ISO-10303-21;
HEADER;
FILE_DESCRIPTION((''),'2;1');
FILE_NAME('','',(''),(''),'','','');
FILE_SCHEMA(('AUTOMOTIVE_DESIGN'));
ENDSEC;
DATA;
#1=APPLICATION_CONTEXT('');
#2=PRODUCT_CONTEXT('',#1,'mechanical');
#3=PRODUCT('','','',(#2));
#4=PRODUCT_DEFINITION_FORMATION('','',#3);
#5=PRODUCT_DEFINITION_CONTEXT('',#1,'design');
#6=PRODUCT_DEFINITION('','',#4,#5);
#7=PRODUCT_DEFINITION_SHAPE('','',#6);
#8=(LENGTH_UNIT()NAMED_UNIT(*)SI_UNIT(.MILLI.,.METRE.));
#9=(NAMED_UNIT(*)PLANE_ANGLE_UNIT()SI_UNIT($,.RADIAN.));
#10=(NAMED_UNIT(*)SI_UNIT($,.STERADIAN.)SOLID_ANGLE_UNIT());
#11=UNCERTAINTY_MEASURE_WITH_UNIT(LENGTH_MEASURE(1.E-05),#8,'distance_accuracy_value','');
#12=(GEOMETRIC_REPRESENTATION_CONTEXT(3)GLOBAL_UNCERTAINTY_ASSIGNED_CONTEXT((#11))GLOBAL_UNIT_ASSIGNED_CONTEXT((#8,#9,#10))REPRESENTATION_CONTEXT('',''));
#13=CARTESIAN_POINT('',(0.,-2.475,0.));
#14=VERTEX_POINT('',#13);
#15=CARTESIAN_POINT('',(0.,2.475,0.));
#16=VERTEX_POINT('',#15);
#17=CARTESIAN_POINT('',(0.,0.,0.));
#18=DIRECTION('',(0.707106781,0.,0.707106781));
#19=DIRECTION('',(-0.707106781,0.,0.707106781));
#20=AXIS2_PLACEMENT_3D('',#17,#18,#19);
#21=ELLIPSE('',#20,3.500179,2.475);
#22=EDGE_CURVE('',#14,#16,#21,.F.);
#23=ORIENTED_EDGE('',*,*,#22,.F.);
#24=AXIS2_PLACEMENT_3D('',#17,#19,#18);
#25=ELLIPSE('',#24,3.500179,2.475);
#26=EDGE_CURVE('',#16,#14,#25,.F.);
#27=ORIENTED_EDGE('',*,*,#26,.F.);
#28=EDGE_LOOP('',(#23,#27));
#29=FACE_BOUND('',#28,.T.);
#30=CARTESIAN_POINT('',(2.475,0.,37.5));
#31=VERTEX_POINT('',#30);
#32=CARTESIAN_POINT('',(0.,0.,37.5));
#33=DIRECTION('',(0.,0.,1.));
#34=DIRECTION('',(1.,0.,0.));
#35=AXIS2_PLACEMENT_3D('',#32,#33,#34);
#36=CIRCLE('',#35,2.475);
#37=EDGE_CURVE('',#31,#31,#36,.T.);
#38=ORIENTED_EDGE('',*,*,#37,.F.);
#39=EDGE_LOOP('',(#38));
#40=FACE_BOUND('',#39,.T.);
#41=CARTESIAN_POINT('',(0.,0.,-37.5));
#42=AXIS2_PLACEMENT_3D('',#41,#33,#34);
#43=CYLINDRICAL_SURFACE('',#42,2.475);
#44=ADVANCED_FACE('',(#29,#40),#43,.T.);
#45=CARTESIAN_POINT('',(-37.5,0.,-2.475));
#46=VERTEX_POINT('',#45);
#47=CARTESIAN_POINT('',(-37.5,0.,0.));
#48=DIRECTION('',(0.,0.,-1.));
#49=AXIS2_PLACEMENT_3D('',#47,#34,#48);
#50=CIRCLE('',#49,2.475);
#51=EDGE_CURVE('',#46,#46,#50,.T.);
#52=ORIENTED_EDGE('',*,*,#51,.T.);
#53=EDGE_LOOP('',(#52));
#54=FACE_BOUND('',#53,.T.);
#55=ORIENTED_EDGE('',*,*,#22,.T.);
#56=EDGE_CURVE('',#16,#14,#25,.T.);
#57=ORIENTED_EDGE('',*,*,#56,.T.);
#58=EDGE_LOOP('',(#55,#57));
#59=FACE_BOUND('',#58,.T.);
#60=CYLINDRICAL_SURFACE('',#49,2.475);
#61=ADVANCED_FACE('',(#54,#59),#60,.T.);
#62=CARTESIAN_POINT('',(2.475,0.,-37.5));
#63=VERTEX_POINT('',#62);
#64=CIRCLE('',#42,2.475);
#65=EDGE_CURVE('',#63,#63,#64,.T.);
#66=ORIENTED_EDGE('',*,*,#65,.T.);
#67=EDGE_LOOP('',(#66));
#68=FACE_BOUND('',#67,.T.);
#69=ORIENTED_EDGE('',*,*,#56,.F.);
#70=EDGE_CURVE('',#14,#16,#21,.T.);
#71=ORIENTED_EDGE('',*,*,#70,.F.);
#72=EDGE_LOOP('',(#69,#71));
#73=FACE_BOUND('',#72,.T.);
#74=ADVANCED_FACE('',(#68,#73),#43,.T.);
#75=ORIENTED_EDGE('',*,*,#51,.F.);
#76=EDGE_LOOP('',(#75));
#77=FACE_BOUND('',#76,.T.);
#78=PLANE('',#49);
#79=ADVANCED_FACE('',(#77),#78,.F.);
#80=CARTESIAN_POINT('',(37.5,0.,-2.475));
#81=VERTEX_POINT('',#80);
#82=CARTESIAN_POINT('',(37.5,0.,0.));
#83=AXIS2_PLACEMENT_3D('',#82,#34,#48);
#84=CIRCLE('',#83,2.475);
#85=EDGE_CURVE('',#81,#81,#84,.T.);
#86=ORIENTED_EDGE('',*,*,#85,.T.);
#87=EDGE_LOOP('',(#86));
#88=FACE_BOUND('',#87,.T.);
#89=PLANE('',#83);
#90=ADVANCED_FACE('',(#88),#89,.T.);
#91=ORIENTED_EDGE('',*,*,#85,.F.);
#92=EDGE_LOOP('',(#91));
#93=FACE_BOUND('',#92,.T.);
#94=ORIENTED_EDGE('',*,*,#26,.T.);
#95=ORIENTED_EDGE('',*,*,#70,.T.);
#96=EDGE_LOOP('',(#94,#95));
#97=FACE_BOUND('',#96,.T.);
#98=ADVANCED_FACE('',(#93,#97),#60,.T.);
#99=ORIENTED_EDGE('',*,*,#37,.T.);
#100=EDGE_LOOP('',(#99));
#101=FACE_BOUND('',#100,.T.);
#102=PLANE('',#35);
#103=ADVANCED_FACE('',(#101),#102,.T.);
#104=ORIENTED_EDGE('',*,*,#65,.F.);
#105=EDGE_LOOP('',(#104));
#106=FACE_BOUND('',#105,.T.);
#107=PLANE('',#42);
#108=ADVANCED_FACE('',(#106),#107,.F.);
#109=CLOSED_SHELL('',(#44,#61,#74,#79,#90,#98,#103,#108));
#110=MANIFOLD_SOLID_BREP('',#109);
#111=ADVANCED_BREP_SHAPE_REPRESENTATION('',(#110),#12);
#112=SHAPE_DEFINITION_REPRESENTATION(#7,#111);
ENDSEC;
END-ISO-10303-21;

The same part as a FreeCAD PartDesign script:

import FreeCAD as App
import Part
import Sketcher
from FreeCAD import Vector
Q = App.Units.Quantity

doc = App.newDocument("Part")
params = doc.addObject("Spreadsheet::Sheet", "Params")
for row, (alias, value) in enumerate([
    ("sketch1_diameter", "4.95 mm"),
    ("pad1_length", "75 mm"),
], start=1):
    params.set(f"A{row}", alias)
    params.set(f"B{row}", "=" + value)
    params.setAlias(f"B{row}", alias)

body = doc.addObject("PartDesign::Body", "Body")

# Sketch on XY plane
sketch1 = body.newObject("Sketcher::SketchObject", "Sketch")
sketch1.AttachmentSupport = (doc.getObject("XY_Plane"), [""])
sketch1.MapMode = "FlatFace"
sketch1.addGeometry(Part.Circle(Vector(0, 0, 0), Vector(0, 0, 1), 2.5), False)
sketch1.addConstraint(Sketcher.Constraint("Coincident", 0, 3, -1, 1))
sketch1.addConstraint(Sketcher.Constraint("Diameter", 0, Q("4.95 mm")))
sketch1.setExpression("Constraints[1]", "Params.sketch1_diameter")
pad1 = body.newObject("PartDesign::Pad", "Pad")
pad1.Profile = sketch1
pad1.setExpression("Length", "Params.pad1_length")
pad1.Midplane = True
doc.recompute()

polarpattern = body.newObject("PartDesign::PolarPattern", "PolarPattern")
polarpattern.Originals = [pad1]
polarpattern.Axis = (doc.getObject("Y_Axis"), [""])
polarpattern.Angle = 90
polarpattern.Occurrences = 2
body.Tip = polarpattern

doc.recompute()
